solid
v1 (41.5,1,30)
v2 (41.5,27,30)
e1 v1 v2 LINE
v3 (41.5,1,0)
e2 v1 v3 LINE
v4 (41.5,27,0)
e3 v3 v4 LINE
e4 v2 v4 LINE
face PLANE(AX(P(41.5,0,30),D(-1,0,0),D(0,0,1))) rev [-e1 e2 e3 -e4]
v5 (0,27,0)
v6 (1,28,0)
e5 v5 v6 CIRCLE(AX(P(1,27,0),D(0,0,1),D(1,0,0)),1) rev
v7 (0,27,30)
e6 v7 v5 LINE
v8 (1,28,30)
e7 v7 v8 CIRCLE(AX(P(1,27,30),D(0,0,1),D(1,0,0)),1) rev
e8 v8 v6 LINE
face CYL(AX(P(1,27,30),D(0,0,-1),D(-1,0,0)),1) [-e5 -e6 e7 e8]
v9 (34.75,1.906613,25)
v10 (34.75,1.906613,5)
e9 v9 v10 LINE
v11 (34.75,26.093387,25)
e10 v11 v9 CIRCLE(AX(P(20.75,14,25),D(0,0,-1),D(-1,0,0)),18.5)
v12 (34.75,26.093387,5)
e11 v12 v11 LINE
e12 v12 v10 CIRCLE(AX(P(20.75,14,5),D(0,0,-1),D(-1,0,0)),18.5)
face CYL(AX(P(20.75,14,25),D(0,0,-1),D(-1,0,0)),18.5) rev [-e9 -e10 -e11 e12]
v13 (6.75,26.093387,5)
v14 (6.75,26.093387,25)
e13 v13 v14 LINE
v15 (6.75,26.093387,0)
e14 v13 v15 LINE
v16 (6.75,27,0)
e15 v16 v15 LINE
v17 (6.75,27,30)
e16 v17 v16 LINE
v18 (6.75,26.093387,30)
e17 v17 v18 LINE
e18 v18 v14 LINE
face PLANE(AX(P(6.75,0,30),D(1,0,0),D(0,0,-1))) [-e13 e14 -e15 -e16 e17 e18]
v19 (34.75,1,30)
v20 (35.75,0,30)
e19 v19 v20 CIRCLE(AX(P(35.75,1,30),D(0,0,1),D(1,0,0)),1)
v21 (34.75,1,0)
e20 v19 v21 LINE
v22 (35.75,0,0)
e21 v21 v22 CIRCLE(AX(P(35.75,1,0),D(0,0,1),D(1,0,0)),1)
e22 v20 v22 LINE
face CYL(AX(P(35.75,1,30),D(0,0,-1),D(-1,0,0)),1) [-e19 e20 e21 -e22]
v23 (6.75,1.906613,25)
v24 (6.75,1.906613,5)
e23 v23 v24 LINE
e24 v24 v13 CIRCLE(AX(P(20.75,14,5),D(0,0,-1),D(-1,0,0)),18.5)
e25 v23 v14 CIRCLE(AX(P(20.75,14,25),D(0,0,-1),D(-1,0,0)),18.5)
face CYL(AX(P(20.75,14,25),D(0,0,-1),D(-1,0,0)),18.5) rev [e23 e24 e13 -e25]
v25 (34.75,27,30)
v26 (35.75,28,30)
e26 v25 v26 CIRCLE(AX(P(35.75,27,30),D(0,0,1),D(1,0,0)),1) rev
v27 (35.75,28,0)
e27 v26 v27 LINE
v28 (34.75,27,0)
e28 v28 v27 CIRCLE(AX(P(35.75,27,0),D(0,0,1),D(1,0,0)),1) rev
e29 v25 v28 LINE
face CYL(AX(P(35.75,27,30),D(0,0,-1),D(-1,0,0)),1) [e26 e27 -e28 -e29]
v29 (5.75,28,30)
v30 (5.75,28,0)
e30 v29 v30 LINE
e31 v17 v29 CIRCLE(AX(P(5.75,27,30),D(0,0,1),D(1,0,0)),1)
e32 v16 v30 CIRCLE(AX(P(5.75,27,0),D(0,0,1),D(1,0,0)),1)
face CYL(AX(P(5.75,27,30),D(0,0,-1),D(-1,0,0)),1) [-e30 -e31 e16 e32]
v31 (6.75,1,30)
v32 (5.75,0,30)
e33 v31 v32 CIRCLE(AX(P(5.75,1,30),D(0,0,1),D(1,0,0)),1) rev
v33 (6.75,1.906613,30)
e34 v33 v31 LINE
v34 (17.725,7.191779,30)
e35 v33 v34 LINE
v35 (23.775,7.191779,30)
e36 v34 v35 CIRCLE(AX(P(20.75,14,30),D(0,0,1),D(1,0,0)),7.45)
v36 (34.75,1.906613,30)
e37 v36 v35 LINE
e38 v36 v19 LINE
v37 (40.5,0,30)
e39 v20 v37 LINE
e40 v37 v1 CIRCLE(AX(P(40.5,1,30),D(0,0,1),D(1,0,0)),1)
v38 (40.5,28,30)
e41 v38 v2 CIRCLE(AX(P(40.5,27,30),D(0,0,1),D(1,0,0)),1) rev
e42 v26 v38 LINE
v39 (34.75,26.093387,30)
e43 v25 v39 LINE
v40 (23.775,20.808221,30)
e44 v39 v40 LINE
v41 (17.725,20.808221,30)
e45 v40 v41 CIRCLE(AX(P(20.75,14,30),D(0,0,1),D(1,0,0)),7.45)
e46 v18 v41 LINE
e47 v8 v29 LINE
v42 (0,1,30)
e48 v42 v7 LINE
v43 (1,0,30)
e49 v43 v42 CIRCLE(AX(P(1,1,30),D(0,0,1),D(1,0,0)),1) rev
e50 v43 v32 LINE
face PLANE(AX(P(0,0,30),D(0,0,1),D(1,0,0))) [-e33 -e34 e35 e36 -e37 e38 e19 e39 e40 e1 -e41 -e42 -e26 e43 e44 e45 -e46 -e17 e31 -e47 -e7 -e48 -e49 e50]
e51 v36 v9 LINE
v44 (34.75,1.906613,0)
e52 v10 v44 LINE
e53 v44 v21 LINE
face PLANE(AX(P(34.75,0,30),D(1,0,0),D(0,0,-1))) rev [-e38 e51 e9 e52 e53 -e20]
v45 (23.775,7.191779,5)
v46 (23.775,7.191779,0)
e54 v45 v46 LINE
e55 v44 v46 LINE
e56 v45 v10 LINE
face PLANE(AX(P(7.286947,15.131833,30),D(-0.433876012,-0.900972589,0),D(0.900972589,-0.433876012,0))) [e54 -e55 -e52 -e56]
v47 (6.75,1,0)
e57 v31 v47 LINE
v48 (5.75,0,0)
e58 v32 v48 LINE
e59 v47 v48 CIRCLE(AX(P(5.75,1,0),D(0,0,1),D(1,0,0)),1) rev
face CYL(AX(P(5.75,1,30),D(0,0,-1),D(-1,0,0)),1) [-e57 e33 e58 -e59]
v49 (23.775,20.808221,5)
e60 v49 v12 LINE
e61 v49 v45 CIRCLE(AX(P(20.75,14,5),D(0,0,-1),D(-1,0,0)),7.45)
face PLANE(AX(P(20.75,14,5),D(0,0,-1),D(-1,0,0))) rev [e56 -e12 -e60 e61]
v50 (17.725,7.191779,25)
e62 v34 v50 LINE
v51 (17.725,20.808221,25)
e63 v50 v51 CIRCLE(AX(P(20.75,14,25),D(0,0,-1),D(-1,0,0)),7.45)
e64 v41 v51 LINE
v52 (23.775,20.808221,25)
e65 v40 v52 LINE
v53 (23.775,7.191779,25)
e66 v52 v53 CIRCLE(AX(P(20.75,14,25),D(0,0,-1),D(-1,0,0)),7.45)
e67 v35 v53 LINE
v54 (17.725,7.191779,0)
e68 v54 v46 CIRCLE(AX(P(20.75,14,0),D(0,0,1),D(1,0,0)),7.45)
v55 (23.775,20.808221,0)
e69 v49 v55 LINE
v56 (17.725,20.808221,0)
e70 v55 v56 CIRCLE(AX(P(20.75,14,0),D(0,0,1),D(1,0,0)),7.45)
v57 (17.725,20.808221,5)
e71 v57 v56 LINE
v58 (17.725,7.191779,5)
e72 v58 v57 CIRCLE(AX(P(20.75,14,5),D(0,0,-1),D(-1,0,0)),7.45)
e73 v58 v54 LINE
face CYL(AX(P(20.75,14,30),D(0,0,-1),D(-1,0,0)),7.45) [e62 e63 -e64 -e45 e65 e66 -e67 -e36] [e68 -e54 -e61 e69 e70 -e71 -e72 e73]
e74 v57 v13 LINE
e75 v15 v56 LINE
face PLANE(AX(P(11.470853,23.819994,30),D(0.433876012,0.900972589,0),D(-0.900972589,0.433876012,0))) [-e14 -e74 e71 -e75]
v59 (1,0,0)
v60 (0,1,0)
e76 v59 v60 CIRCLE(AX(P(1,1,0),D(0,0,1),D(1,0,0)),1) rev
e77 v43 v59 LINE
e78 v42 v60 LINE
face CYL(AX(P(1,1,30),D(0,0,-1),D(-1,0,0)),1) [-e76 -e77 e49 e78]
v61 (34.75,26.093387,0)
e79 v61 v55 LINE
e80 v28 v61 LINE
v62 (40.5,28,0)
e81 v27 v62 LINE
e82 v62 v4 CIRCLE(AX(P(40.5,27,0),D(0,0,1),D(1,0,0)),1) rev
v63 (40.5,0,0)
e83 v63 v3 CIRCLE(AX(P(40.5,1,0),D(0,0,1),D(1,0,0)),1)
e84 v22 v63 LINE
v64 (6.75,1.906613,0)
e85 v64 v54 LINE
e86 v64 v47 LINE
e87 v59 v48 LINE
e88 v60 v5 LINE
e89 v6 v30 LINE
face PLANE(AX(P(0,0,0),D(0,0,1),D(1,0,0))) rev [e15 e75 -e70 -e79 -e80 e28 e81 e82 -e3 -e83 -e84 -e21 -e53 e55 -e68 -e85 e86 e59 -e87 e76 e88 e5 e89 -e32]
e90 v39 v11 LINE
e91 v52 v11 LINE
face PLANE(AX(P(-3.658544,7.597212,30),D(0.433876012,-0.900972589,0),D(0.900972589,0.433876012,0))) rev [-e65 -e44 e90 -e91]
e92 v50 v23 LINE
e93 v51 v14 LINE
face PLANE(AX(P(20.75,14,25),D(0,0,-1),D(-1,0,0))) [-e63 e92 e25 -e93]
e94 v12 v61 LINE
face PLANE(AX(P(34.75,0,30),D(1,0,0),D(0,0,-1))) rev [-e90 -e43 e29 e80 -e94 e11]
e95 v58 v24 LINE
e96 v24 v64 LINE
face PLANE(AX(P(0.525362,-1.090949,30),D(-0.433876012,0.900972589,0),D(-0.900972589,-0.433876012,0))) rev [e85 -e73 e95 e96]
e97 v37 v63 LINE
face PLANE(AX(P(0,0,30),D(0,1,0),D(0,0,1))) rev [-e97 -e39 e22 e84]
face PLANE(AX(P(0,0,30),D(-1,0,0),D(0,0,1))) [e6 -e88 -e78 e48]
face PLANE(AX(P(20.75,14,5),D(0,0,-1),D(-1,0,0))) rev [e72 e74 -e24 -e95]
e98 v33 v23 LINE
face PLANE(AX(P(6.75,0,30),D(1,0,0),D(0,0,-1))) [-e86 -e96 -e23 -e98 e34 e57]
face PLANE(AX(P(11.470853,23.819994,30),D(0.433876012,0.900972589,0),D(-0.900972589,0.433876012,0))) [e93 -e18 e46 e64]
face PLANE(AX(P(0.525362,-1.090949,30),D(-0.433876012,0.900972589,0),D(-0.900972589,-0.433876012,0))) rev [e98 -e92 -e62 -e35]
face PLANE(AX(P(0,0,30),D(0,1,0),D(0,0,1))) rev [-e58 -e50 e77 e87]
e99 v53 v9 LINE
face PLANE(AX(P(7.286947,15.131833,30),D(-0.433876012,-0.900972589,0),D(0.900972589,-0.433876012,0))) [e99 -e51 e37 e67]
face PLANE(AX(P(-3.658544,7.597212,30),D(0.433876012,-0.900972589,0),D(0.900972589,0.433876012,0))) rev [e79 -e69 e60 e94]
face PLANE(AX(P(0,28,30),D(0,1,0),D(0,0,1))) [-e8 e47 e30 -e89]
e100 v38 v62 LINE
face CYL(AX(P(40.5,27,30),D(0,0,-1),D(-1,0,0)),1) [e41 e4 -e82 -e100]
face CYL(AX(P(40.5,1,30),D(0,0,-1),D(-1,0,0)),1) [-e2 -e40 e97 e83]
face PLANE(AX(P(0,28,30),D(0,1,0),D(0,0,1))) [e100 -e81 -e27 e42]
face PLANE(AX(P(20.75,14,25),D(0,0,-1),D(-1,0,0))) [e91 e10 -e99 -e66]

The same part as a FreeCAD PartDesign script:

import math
import FreeCAD as App
import Part
import Sketcher
from FreeCAD import Vector
Q = App.Units.Quantity

doc = App.newDocument("Part")
params = doc.addObject("Spreadsheet::Sheet", "Params")
for row, (alias, value) in enumerate([
    ("sketch1_radius", "1 mm"),
    ("sketch1_height", "26 mm"),
    ("sketch1_radius2", "7.45 mm"),
    ("sketch1_width", "4.75 mm"),
    ("pad1_length", "30 mm"),
    ("sketch2_diameter", "37 mm"),
    ("sketch2_diameter2", "14.9 mm"),
    ("pocket1_length", "20 mm"),
], start=1):
    params.set(f"A{row}", alias)
    params.set(f"B{row}", "=" + value)
    params.setAlias(f"B{row}", alias)

body = doc.addObject("PartDesign::Body", "Body")

sketch1 = body.newObject("Sketcher::SketchObject", "Sketch")
sketch1.AttachmentSupport = (doc.getObject("XY_Plane"), [""])
sketch1.MapMode = "FlatFace"
sketch1.addGeometry([
    Part.LineSegment(Vector(0, 27, 0), Vector(0, 1, 0)),
    Part.ArcOfCircle(Part.Circle(Vector(1, 1, 0), Vector(0, 0, 1), 1), math.radians(-180), math.radians(-90)),
    Part.LineSegment(Vector(1, 0, 0), Vector(5.8, 0, 0)),
    Part.ArcOfCircle(Part.Circle(Vector(5.7, 1, 0), Vector(0, 0, 1), 1), math.radians(-90), math.radians(0)),
    Part.LineSegment(Vector(6.8, 1, 0), Vector(6.8, 1.9, 0)),
    Part.LineSegment(Vector(6.8, 1.9, 0), Vector(17.7, 7.2, 0)),
    Part.ArcOfCircle(Part.Circle(Vector(20.8, 14, 0), Vector(0, 0, 1), 7.4), math.radians(-114), math.radians(-66)),
    Part.LineSegment(Vector(23.8, 7.2, 0), Vector(34.8, 1.9, 0)),
    Part.LineSegment(Vector(34.8, 1.9, 0), Vector(34.8, 1, 0)),
    Part.ArcOfCircle(Part.Circle(Vector(35.8, 1, 0), Vector(0, 0, 1), 1), math.radians(-180), math.radians(-90)),
    Part.LineSegment(Vector(35.8, 0, 0), Vector(40.5, 0, 0)),
    Part.ArcOfCircle(Part.Circle(Vector(40.5, 1, 0), Vector(0, 0, 1), 1), math.radians(-90), math.radians(0)),
    Part.LineSegment(Vector(41.5, 1, 0), Vector(41.5, 27, 0)),
    Part.ArcOfCircle(Part.Circle(Vector(40.5, 27, 0), Vector(0, 0, 1), 1), math.radians(0), math.radians(90)),
    Part.LineSegment(Vector(40.5, 28, 0), Vector(35.8, 28, 0)),
    Part.ArcOfCircle(Part.Circle(Vector(35.8, 27, 0), Vector(0, 0, 1), 1), math.radians(90), math.radians(180)),
    Part.LineSegment(Vector(34.8, 27, 0), Vector(34.8, 26.1, 0)),
    Part.LineSegment(Vector(34.8, 26.1, 0), Vector(23.8, 20.8, 0)),
    Part.ArcOfCircle(Part.Circle(Vector(20.8, 14, 0), Vector(0, 0, 1), 7.4), math.radians(66), math.radians(114)),
    Part.LineSegment(Vector(17.7, 20.8, 0), Vector(6.8, 26.1, 0)),
    Part.LineSegment(Vector(6.8, 26.1, 0), Vector(6.8, 27, 0)),
    Part.ArcOfCircle(Part.Circle(Vector(5.7, 27, 0), Vector(0, 0, 1), 1), math.radians(0), math.radians(90)),
    Part.LineSegment(Vector(5.8, 28, 0), Vector(1, 28, 0)),
    Part.ArcOfCircle(Part.Circle(Vector(1, 27, 0), Vector(0, 0, 1), 1), math.radians(90), math.radians(180)),
], False)
sketch1.addConstraint([
    Sketcher.Constraint("Tangent", 0, 2, 1, 1),
    Sketcher.Constraint("Tangent", 1, 2, 2, 1),
    Sketcher.Constraint("Tangent", 2, 2, 3, 1),
    Sketcher.Constraint("Tangent", 3, 2, 4, 1),
    Sketcher.Constraint("Coincident", 4, 2, 5, 1),
    Sketcher.Constraint("Coincident", 5, 2, 6, 1),
    Sketcher.Constraint("Coincident", 6, 2, 7, 1),
    Sketcher.Constraint("Coincident", 7, 2, 8, 1),
    Sketcher.Constraint("Tangent", 8, 2, 9, 1),
    Sketcher.Constraint("Tangent", 9, 2, 10, 1),
    Sketcher.Constraint("Tangent", 10, 2, 11, 1),
    Sketcher.Constraint("Tangent", 11, 2, 12, 1),
    Sketcher.Constraint("Tangent", 12, 2, 13, 1),
    Sketcher.Constraint("Tangent", 13, 2, 14, 1),
    Sketcher.Constraint("Tangent", 14, 2, 15, 1),
    Sketcher.Constraint("Tangent", 15, 2, 16, 1),
    Sketcher.Constraint("Coincident", 16, 2, 17, 1),
    Sketcher.Constraint("Coincident", 17, 2, 18, 1),
    Sketcher.Constraint("Coincident", 18, 2, 19, 1),
    Sketcher.Constraint("Coincident", 19, 2, 20, 1),
    Sketcher.Constraint("Tangent", 20, 2, 21, 1),
    Sketcher.Constraint("Tangent", 21, 2, 22, 1),
    Sketcher.Constraint("Tangent", 22, 2, 23, 1),
    Sketcher.Constraint("Tangent", 23, 2, 0, 1),
    Sketcher.Constraint("Vertical", 0),
    Sketcher.Constraint("Horizontal", 2),
    Sketcher.Constraint("Vertical", 4),
    Sketcher.Constraint("Vertical", 8),
    Sketcher.Constraint("Horizontal", 10),
    Sketcher.Constraint("Vertical", 12),
    Sketcher.Constraint("Horizontal", 14),
    Sketcher.Constraint("Vertical", 16),
    Sketcher.Constraint("Vertical", 20),
    Sketcher.Constraint("Horizontal", 22),
    Sketcher.Constraint("Coincident", 18, 3, 6, 3),
    Sketcher.Constraint("Equal", 1, 3),
    Sketcher.Constraint("Equal", 3, 9),
    Sketcher.Constraint("Equal", 9, 11),
    Sketcher.Constraint("Equal", 11, 13),
    Sketcher.Constraint("Equal", 13, 15),
    Sketcher.Constraint("Equal", 6, 18),
    Sketcher.Constraint("Equal", 15, 21),
    Sketcher.Constraint("Equal", 21, 23),
    Sketcher.Constraint("PointOnObject", 0, 2, -2),
    Sketcher.Constraint("PointOnObject", 1, 2, -1),
    Sketcher.Constraint("PointOnObject", 9, 2, -1),
    Sketcher.Constraint("Parallel", 5, 17),
    Sketcher.Constraint("Parallel", 7, 19),
    Sketcher.Constraint("Horizontal", 15, 3, 21, 3),
    Sketcher.Constraint("Horizontal", 5, 2, 6, 2),
    Sketcher.Constraint("Horizontal", 4, 2, 7, 2),
    Sketcher.Constraint("Horizontal", 17, 2, 18, 2),
    Sketcher.Constraint("Horizontal", 16, 2, 19, 2),
    Sketcher.Constraint("Vertical", 9, 3, 15, 3),
    Sketcher.Constraint("Vertical", 3, 3, 21, 3),
    Sketcher.Constraint("Vertical", 6, 2, 17, 2),
    Sketcher.Constraint("Equal", 2, 10),
    Sketcher.Constraint("Equal", 8, 16),
    Sketcher.Constraint("Radius", 1, Q("1 mm")),
    Sketcher.Constraint("DistanceY", 0, 2, 0, 1, Q("26 mm")),
    Sketcher.Constraint("Radius", 6, Q("7.45 mm")),
    Sketcher.Constraint("DistanceX", 3, 3, 6, 3, Q("15 mm")),
    Sketcher.Constraint("DistanceX", 2, 1, 2, 2, Q("4.75 mm")),
    Sketcher.Constraint("DistanceX", 5, 2, 6, 2, Q("6.05 mm")),
    Sketcher.Constraint("Distance", 5, Q("12.181281 mm")),
])
sketch1.setExpression("Constraints[58]", "Params.sketch1_radius")
sketch1.setExpression("Constraints[59]", "Params.sketch1_height")
sketch1.setExpression("Constraints[60]", "Params.sketch1_radius2")
sketch1.setExpression("Constraints[62]", "Params.sketch1_width")
pad1 = body.newObject("PartDesign::Pad", "Pad")
pad1.Profile = sketch1
pad1.setExpression("Length", "Params.pad1_length")

sketch2 = body.newObject("Sketcher::SketchObject", "Sketch001")
sketch2.AttachmentSupport = (doc.getObject("XY_Plane"), [""])
sketch2.MapMode = "FlatFace"
sketch2.AttachmentOffset = App.Placement(Vector(0, 0, 5), App.Rotation())
sketch2.addGeometry([
    Part.Circle(Vector(21, 14, 0), Vector(0, 0, 1), 18),
    Part.Circle(Vector(21, 14, 0), Vector(0, 0, 1), 7),
], False)
sketch2.addConstraint([
    Sketcher.Constraint("Coincident", 1, 3, 0, 3),
    Sketcher.Constraint("Diameter", 0, Q("37 mm")),
    Sketcher.Constraint("Diameter", 1, Q("14.9 mm")),
    Sketcher.Constraint("DistanceY", -1, 1, 0, 3, Q("14 mm")),
    Sketcher.Constraint("DistanceX", -1, 1, 0, 3, Q("20.75 mm")),
])
sketch2.setExpression("Constraints[1]", "Params.sketch2_diameter")
sketch2.setExpression("Constraints[2]", "Params.sketch2_diameter2")
pocket1 = body.newObject("PartDesign::Pocket", "Pocket")
pocket1.Profile = sketch2
pocket1.setExpression("Length", "Params.pocket1_length")
pocket1.Reversed = True

doc.recompute()
